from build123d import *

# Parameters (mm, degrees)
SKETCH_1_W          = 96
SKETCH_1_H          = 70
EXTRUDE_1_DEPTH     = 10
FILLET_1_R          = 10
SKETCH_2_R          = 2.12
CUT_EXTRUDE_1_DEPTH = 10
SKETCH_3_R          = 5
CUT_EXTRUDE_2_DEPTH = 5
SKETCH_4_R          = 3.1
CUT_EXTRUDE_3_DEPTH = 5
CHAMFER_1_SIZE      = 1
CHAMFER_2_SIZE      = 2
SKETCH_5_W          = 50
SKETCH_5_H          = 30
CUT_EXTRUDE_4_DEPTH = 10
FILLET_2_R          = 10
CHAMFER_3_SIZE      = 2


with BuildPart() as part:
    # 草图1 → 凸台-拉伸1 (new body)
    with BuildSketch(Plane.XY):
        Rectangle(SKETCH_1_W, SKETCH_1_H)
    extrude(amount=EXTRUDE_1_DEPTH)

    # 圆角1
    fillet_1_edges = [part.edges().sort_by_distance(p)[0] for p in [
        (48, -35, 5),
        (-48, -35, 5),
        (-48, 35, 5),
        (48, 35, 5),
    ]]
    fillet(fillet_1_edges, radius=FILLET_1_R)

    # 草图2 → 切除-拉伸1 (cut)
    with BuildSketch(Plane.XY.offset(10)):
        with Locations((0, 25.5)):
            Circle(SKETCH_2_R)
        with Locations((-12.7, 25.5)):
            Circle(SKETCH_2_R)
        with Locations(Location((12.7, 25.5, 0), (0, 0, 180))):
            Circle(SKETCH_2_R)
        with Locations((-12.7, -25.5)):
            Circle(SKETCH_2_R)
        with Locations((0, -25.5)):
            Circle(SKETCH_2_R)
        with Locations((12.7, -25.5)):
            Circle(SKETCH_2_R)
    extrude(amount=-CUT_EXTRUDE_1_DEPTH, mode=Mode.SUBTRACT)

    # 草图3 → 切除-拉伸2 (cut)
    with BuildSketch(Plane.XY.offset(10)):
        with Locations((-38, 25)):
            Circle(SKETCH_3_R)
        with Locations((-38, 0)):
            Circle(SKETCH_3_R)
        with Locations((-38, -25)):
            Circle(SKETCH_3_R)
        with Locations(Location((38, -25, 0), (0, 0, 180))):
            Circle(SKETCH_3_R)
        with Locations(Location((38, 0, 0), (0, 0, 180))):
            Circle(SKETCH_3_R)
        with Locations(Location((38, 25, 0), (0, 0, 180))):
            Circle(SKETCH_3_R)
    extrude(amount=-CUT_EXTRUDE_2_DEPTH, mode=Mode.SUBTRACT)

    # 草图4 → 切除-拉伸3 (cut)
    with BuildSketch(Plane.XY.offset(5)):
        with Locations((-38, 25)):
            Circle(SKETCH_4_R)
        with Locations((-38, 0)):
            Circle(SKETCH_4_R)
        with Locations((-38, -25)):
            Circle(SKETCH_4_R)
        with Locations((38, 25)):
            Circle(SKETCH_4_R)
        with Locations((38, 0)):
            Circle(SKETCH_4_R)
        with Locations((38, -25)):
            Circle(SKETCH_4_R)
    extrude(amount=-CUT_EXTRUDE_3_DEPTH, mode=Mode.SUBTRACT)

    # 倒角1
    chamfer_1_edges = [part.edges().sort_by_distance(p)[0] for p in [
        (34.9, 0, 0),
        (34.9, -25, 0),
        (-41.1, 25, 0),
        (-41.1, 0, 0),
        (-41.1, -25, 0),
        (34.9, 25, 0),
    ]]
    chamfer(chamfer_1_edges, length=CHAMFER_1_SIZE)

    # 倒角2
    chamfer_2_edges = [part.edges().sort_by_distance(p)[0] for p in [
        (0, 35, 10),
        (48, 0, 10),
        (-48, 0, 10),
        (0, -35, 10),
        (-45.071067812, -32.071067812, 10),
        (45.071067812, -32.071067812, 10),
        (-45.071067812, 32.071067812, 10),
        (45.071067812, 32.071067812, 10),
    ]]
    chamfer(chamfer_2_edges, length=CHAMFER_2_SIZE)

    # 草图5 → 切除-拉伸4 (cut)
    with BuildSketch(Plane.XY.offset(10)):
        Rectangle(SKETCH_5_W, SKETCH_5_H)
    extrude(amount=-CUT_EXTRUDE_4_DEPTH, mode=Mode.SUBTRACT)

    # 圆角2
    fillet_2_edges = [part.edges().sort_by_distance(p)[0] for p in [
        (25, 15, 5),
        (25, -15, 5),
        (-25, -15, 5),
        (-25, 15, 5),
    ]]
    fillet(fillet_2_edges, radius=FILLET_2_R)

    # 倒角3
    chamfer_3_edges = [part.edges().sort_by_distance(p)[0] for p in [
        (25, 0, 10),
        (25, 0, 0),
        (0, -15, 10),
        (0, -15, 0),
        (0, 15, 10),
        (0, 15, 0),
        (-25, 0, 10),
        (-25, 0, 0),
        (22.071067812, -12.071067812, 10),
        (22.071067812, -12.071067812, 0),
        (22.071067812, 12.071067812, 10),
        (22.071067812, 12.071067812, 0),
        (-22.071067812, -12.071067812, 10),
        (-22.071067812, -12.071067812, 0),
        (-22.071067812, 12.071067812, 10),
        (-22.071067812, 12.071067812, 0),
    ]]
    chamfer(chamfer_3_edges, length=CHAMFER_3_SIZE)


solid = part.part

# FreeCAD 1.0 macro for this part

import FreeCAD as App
import Part
import Sketcher


def edges_at(feature, points):
    """Names of the edges that pass closest to the given points."""
    edges = feature.Shape.Edges
    near = lambda p: min(range(len(edges)), key=lambda i: edges[i].distToShape(Part.Vertex(*p))[0])
    return sorted({f"Edge{near(p) + 1}" for p in points})

doc = App.newDocument("Part")
body = doc.addObject("PartDesign::Body", "Body")

sketch1 = body.newObject("Sketcher::SketchObject", "Sketch")
sketch1.AttachmentSupport = (doc.getObject("XY_Plane"), [""])
sketch1.MapMode = "FlatFace"
sketch1.addGeometry(Part.LineSegment(App.Vector(-48, 35, 0), App.Vector(-48, -35, 0)), False)
sketch1.addGeometry(Part.LineSegment(App.Vector(-48, -35, 0), App.Vector(48, -35, 0)), False)
sketch1.addGeometry(Part.LineSegment(App.Vector(48, -35, 0), App.Vector(48, 35, 0)), False)
sketch1.addGeometry(Part.LineSegment(App.Vector(48, 35, 0), App.Vector(-48, 35, 0)), False)
sketch1.addConstraint(Sketcher.Constraint("Coincident", 0, 2, 1, 1))
sketch1.addConstraint(Sketcher.Constraint("Coincident", 1, 2, 2, 1))
sketch1.addConstraint(Sketcher.Constraint("Coincident", 2, 2, 3, 1))
sketch1.addConstraint(Sketcher.Constraint("Coincident", 3, 2, 0, 1))
sketch1.addConstraint(Sketcher.Constraint("Vertical", 0))
sketch1.addConstraint(Sketcher.Constraint("Horizontal", 1))
sketch1.addConstraint(Sketcher.Constraint("Vertical", 2))
sketch1.addConstraint(Sketcher.Constraint("Horizontal", 3))
sketch1.addConstraint(Sketcher.Constraint("Symmetric", 0, 2, 2, 2, -1, 1))
sketch1.addConstraint(Sketcher.Constraint("DistanceX", 1, 1, 1, 2, 96.0))
sketch1.addConstraint(Sketcher.Constraint("DistanceY", 0, 2, 0, 1, 70.0))
pad1 = body.newObject("PartDesign::Pad", "Pad")
pad1.Profile = sketch1
pad1.Length = 10
doc.recompute()

fillet = body.newObject("PartDesign::Fillet", "Fillet")
fillet.Base = (pad1, edges_at(pad1, [
    (48, -35, 5),
    (-48, -35, 5),
    (-48, 35, 5),
    (48, 35, 5),
]))
fillet.Radius = 10

sketch2 = body.newObject("Sketcher::SketchObject", "Sketch001")
sketch2.AttachmentSupport = (doc.getObject("XY_Plane"), [""])
sketch2.MapMode = "FlatFace"
sketch2.AttachmentOffset = App.Placement(App.Vector(0, 0, 10), App.Rotation())
sketch2.addGeometry(Part.Circle(App.Vector(0, 25.5, 0), App.Vector(0, 0, 1), 2.12), False)
sketch2.addGeometry(Part.Circle(App.Vector(-12.7, 25.5, 0), App.Vector(0, 0, 1), 2.12), False)
sketch2.addGeometry(Part.Circle(App.Vector(12.7, 25.5, 0), App.Vector(0, 0, 1), 2.12), False)
sketch2.addGeometry(Part.Circle(App.Vector(-12.7, -25.5, 0), App.Vector(0, 0, 1), 2.12), False)
sketch2.addGeometry(Part.Circle(App.Vector(0, -25.5, 0), App.Vector(0, 0, 1), 2.12), False)
sketch2.addGeometry(Part.Circle(App.Vector(12.7, -25.5, 0), App.Vector(0, 0, 1), 2.12), False)
sketch2.addConstraint(Sketcher.Constraint("Equal", 0, 1))
sketch2.addConstraint(Sketcher.Constraint("Equal", 1, 2))
sketch2.addConstraint(Sketcher.Constraint("Equal", 2, 3))
sketch2.addConstraint(Sketcher.Constraint("Equal", 3, 4))
sketch2.addConstraint(Sketcher.Constraint("Equal", 4, 5))
sketch2.addConstraint(Sketcher.Constraint("Symmetric", 2, 3, 3, 3, -1, 1))
sketch2.addConstraint(Sketcher.Constraint("Symmetric", 0, 3, 4, 3, -1, 1))
sketch2.addConstraint(Sketcher.Constraint("Symmetric", 1, 3, 5, 3, -1, 1))
sketch2.addConstraint(Sketcher.Constraint("Symmetric", 1, 3, 2, 3, -2))
sketch2.addConstraint(Sketcher.Constraint("PointOnObject", 0, 3, -2))
sketch2.addConstraint(Sketcher.Constraint("Horizontal", 0, 3, 1, 3))
sketch2.addConstraint(Sketcher.Constraint("Diameter", 0, 4.24))
sketch2.addConstraint(Sketcher.Constraint("DistanceY", 3, 3, 1, 3, 51.0))
sketch2.addConstraint(Sketcher.Constraint("DistanceX", 1, 3, -1, 1, 12.7))
pocket1 = body.newObject("PartDesign::Pocket", "Pocket")
pocket1.Profile = sketch2
pocket1.Length = 10

sketch3 = body.newObject("Sketcher::SketchObject", "Sketch002")
sketch3.AttachmentSupport = (doc.getObject("XY_Plane"), [""])
sketch3.MapMode = "FlatFace"
sketch3.AttachmentOffset = App.Placement(App.Vector(0, 0, 10), App.Rotation())
sketch3.addGeometry(Part.Circle(App.Vector(-38, 25, 0), App.Vector(0, 0, 1), 5), False)
sketch3.addGeometry(Part.Circle(App.Vector(-38, 0, 0), App.Vector(0, 0, 1), 5), False)
sketch3.addGeometry(Part.Circle(App.Vector(-38, -25, 0), App.Vector(0, 0, 1), 5), False)
sketch3.addGeometry(Part.Circle(App.Vector(38, -25, 0), App.Vector(0, 0, 1), 5), False)
sketch3.addGeometry(Part.Circle(App.Vector(38, 0, 0), App.Vector(0, 0, 1), 5), False)
sketch3.addGeometry(Part.Circle(App.Vector(38, 25, 0), App.Vector(0, 0, 1), 5), False)
sketch3.addConstraint(Sketcher.Constraint("Equal", 0, 1))
sketch3.addConstraint(Sketcher.Constraint("Equal", 1, 2))
sketch3.addConstraint(Sketcher.Constraint("Equal", 2, 3))
sketch3.addConstraint(Sketcher.Constraint("Equal", 3, 4))
sketch3.addConstraint(Sketcher.Constraint("Equal", 4, 5))
sketch3.addConstraint(Sketcher.Constraint("Symmetric", 0, 3, 3, 3, -1, 1))
sketch3.addConstraint(Sketcher.Constraint("Symmetric", 1, 3, 4, 3, -1, 1))
sketch3.addConstraint(Sketcher.Constraint("Symmetric", 2, 3, 5, 3, -1, 1))
sketch3.addConstraint(Sketcher.Constraint("Symmetric", 2, 3, 3, 3, -2))
sketch3.addConstraint(Sketcher.Constraint("PointOnObject", 1, 3, -1))
sketch3.addConstraint(Sketcher.Constraint("Vertical", 0, 3, 1, 3))
sketch3.addConstraint(Sketcher.Constraint("Diameter", 0, 10.0))
sketch3.addConstraint(Sketcher.Constraint("DistanceX", 0, 3, -1, 1, 38.0))
sketch3.addConstraint(Sketcher.Constraint("DistanceY", -1, 1, 0, 3, 25.0))
pocket2 = body.newObject("PartDesign::Pocket", "Pocket001")
pocket2.Profile = sketch3
pocket2.Length = 5

sketch4 = body.newObject("Sketcher::SketchObject", "Sketch003")
sketch4.AttachmentSupport = (doc.getObject("XY_Plane"), [""])
sketch4.MapMode = "FlatFace"
sketch4.AttachmentOffset = App.Placement(App.Vector(0, 0, 5), App.Rotation())
sketch4.addGeometry(Part.Circle(App.Vector(-38, 25, 0), App.Vector(0, 0, 1), 3.1), False)
sketch4.addGeometry(Part.Circle(App.Vector(-38, 0, 0), App.Vector(0, 0, 1), 3.1), False)
sketch4.addGeometry(Part.Circle(App.Vector(-38, -25, 0), App.Vector(0, 0, 1), 3.1), False)
sketch4.addGeometry(Part.Circle(App.Vector(38, 25, 0), App.Vector(0, 0, 1), 3.1), False)
sketch4.addGeometry(Part.Circle(App.Vector(38, 0, 0), App.Vector(0, 0, 1), 3.1), False)
sketch4.addGeometry(Part.Circle(App.Vector(38, -25, 0), App.Vector(0, 0, 1), 3.1), False)
sketch4.addConstraint(Sketcher.Constraint("Equal", 0, 1))
sketch4.addConstraint(Sketcher.Constraint("Equal", 1, 2))
sketch4.addConstraint(Sketcher.Constraint("Equal", 2, 3))
sketch4.addConstraint(Sketcher.Constraint("Equal", 3, 4))
sketch4.addConstraint(Sketcher.Constraint("Equal", 4, 5))
sketch4.addConstraint(Sketcher.Constraint("Symmetric", 2, 3, 3, 3, -1, 1))
sketch4.addConstraint(Sketcher.Constraint("Symmetric", 1, 3, 4, 3, -1, 1))
sketch4.addConstraint(Sketcher.Constraint("Symmetric", 0, 3, 5, 3, -1, 1))
sketch4.addConstraint(Sketcher.Constraint("Symmetric", 0, 3, 3, 3, -2))
sketch4.addConstraint(Sketcher.Constraint("PointOnObject", 1, 3, -1))
sketch4.addConstraint(Sketcher.Constraint("Vertical", 0, 3, 1, 3))
sketch4.addConstraint(Sketcher.Constraint("Diameter", 0, 6.2))
sketch4.addConstraint(Sketcher.Constraint("DistanceX", 0, 3, -1, 1, 38.0))
sketch4.addConstraint(Sketcher.Constraint("DistanceY", -1, 1, 0, 3, 25.0))
pocket3 = body.newObject("PartDesign::Pocket", "Pocket002")
pocket3.Profile = sketch4
pocket3.Length = 5
doc.recompute()

chamfer = body.newObject("PartDesign::Chamfer", "Chamfer")
chamfer.Base = (pocket3, edges_at(pocket3, [
    (34.9, 0, 0),
    (34.9, -25, 0),
    (-41.1, 25, 0),
    (-41.1, 0, 0),
    (-41.1, -25, 0),
    (34.9, 25, 0),
]))
chamfer.Size = 1
doc.recompute()

chamfer2 = body.newObject("PartDesign::Chamfer", "Chamfer001")
chamfer2.Base = (chamfer, edges_at(chamfer, [
    (0, 35, 10),
    (48, 0, 10),
    (-48, 0, 10),
    (0, -35, 10),
    (-45.071, -32.071, 10),
    (45.071, -32.071, 10),
    (-45.071, 32.071, 10),
    (45.071, 32.071, 10),
]))
chamfer2.Size = 2

sketch5 = body.newObject("Sketcher::SketchObject", "Sketch004")
sketch5.AttachmentSupport = (doc.getObject("XY_Plane"), [""])
sketch5.MapMode = "FlatFace"
sketch5.AttachmentOffset = App.Placement(App.Vector(0, 0, 10), App.Rotation())
sketch5.addGeometry(Part.LineSegment(App.Vector(-25, 15, 0), App.Vector(-25, -15, 0)), False)
sketch5.addGeometry(Part.LineSegment(App.Vector(-25, -15, 0), App.Vector(25, -15, 0)), False)
sketch5.addGeometry(Part.LineSegment(App.Vector(25, -15, 0), App.Vector(25, 15, 0)), False)
sketch5.addGeometry(Part.LineSegment(App.Vector(25, 15, 0), App.Vector(-25, 15, 0)), False)
sketch5.addConstraint(Sketcher.Constraint("Coincident", 0, 2, 1, 1))
sketch5.addConstraint(Sketcher.Constraint("Coincident", 1, 2, 2, 1))
sketch5.addConstraint(Sketcher.Constraint("Coincident", 2, 2, 3, 1))
sketch5.addConstraint(Sketcher.Constraint("Coincident", 3, 2, 0, 1))
sketch5.addConstraint(Sketcher.Constraint("Vertical", 0))
sketch5.addConstraint(Sketcher.Constraint("Horizontal", 1))
sketch5.addConstraint(Sketcher.Constraint("Vertical", 2))
sketch5.addConstraint(Sketcher.Constraint("Horizontal", 3))
sketch5.addConstraint(Sketcher.Constraint("Symmetric", 0, 2, 2, 2, -1, 1))
sketch5.addConstraint(Sketcher.Constraint("DistanceX", 1, 1, 1, 2, 50.0))
sketch5.addConstraint(Sketcher.Constraint("DistanceY", 0, 2, 0, 1, 30.0))
pocket4 = body.newObject("PartDesign::Pocket", "Pocket003")
pocket4.Profile = sketch5
pocket4.Length = 10
doc.recompute()

fillet2 = body.newObject("PartDesign::Fillet", "Fillet001")
fillet2.Base = (pocket4, edges_at(pocket4, [
    (25, 15, 5),
    (25, -15, 5),
    (-25, -15, 5),
    (-25, 15, 5),
]))
fillet2.Radius = 10
doc.recompute()

chamfer3 = body.newObject("PartDesign::Chamfer", "Chamfer002")
chamfer3.Base = (fillet2, edges_at(fillet2, [
    (25, 0, 10),
    (25, 0, 0),
    (0, -15, 10),
    (0, -15, 0),
    (0, 15, 10),
    (0, 15, 0),
    (-25, 0, 10),
    (-25, 0, 0),
    (22.071, -12.071, 10),
    (22.071, -12.071, 0),
    (22.071, 12.071, 10),
    (22.071, 12.071, 0),
    (-22.071, -12.071, 10),
    (-22.071, -12.071, 0),
    (-22.071, 12.071, 10),
    (-22.071, 12.071, 0),
]))
chamfer3.Size = 2

doc.recompute()
